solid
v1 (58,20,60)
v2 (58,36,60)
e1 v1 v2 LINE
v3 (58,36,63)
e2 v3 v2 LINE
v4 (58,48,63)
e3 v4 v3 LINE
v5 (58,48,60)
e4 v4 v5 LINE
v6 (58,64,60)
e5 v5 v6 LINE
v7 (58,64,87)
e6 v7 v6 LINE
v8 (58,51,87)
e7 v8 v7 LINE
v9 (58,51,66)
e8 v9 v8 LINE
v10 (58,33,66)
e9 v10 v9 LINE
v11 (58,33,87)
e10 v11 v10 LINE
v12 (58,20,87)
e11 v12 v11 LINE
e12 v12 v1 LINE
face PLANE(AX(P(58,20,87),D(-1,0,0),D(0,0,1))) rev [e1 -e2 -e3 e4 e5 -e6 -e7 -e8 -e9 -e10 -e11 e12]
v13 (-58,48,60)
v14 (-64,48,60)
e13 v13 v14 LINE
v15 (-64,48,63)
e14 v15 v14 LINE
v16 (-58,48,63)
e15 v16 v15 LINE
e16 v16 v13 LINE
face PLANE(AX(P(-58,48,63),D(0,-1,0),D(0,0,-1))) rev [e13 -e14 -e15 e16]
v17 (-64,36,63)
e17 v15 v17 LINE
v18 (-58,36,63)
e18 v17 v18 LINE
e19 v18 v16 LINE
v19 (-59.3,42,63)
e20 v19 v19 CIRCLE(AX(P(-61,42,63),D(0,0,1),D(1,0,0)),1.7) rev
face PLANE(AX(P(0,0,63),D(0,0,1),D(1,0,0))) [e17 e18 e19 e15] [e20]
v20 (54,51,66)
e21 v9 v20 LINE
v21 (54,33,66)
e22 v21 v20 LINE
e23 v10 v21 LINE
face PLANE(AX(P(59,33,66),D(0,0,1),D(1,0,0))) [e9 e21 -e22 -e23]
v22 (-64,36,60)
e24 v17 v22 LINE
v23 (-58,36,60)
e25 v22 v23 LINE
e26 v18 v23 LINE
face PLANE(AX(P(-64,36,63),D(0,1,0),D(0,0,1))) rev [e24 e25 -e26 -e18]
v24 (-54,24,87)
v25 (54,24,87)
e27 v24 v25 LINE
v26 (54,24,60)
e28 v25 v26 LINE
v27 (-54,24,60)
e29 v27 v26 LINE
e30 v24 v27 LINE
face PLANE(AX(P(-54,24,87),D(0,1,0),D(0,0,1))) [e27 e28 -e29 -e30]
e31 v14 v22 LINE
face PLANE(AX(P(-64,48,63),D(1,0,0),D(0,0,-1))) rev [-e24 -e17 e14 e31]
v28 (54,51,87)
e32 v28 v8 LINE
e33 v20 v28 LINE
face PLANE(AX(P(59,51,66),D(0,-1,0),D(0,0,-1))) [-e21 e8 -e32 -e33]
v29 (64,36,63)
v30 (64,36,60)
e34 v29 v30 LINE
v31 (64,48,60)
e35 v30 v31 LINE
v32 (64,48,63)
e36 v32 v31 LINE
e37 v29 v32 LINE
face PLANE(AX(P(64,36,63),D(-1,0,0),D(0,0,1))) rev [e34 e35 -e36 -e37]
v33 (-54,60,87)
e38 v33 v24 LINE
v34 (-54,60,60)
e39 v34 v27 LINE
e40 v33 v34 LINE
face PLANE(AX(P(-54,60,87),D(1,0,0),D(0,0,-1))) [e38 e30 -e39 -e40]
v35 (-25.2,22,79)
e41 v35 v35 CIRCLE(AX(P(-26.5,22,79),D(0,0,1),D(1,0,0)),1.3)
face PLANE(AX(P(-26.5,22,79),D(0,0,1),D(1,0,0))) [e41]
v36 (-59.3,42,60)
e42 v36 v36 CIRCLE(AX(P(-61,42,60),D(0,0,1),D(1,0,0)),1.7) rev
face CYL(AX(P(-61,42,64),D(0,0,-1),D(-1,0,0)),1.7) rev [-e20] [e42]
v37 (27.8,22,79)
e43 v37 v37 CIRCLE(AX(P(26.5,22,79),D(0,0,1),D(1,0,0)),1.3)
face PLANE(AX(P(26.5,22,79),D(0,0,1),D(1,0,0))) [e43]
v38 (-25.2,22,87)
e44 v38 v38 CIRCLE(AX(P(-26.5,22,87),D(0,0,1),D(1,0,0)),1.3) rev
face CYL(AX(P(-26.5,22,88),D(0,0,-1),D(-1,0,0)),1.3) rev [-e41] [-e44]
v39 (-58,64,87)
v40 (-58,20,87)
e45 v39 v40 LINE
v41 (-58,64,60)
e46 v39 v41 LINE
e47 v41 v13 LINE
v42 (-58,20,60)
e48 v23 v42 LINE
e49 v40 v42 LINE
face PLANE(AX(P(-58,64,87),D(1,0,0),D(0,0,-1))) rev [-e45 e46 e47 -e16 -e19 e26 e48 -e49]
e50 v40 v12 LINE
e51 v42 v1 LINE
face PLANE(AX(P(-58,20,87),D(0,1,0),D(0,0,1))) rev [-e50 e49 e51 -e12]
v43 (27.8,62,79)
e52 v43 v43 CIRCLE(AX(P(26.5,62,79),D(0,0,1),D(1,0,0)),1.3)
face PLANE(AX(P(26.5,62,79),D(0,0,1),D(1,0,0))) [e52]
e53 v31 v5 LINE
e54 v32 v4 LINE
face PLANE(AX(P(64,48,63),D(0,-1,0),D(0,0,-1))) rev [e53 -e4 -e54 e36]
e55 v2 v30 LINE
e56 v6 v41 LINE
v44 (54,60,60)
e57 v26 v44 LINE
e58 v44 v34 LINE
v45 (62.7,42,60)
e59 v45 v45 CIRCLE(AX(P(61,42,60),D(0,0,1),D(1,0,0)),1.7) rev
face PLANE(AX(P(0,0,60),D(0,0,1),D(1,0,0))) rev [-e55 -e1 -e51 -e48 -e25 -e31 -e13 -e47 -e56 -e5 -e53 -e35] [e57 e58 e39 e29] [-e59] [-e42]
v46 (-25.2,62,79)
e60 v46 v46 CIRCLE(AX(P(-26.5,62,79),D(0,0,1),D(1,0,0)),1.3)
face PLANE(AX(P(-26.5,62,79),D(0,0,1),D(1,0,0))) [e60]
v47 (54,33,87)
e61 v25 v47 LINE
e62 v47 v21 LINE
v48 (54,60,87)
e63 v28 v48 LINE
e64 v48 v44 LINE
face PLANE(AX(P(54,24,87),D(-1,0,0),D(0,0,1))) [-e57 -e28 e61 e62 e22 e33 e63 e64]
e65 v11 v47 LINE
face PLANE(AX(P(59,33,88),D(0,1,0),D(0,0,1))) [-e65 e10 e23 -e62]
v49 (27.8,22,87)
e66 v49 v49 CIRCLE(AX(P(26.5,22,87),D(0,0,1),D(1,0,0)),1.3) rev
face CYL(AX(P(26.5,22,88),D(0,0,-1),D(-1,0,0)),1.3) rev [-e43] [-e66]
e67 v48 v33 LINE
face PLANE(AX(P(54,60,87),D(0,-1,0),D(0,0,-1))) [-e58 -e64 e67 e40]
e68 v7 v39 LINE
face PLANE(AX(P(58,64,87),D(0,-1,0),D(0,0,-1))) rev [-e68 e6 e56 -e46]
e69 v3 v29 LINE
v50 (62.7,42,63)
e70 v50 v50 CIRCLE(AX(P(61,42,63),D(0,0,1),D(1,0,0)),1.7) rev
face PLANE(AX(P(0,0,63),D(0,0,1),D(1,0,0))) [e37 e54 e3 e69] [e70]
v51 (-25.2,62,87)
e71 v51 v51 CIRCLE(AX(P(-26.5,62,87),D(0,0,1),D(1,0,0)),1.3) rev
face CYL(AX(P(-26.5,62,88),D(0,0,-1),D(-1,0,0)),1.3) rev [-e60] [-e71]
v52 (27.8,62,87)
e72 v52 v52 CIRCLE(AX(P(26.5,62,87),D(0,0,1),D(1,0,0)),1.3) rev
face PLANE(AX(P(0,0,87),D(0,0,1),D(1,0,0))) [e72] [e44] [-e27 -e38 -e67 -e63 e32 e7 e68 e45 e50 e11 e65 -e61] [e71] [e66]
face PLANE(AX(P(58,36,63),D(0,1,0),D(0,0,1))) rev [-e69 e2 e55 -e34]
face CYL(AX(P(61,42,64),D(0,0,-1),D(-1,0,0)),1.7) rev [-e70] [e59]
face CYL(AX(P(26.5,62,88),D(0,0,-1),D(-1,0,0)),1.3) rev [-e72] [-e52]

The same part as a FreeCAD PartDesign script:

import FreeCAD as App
import Part
import Sketcher
Q = App.Units.Quantity

doc = App.newDocument("Part")
body = doc.addObject("PartDesign::Body", "Body")

sketch1 = body.newObject("Sketcher::SketchObject", "Sketch")
sketch1.AttachmentSupport = (doc.getObject("XY_Plane"), [""])
sketch1.MapMode = "FlatFace"
sketch1.AttachmentOffset = App.Placement(App.Vector(0, 0, 60), App.Rotation())
sketch1.addGeometry([
    Part.LineSegment(App.Vector(-58, 64, 0), App.Vector(-58, 20, 0)),
    Part.LineSegment(App.Vector(-58, 20, 0), App.Vector(58, 20, 0)),
    Part.LineSegment(App.Vector(58, 20, 0), App.Vector(58, 64, 0)),
    Part.LineSegment(App.Vector(58, 64, 0), App.Vector(-58, 64, 0)),
    Part.LineSegment(App.Vector(54, 24, 0), App.Vector(-54, 24, 0)),
    Part.LineSegment(App.Vector(-54, 24, 0), App.Vector(-54, 60, 0)),
    Part.LineSegment(App.Vector(-54, 60, 0), App.Vector(54, 60, 0)),
    Part.LineSegment(App.Vector(54, 60, 0), App.Vector(54, 24, 0)),
], False)
sketch1.addConstraint([
    Sketcher.Constraint("Coincident", 0, 2, 1, 1),
    Sketcher.Constraint("Coincident", 1, 2, 2, 1),
    Sketcher.Constraint("Coincident", 2, 2, 3, 1),
    Sketcher.Constraint("Coincident", 3, 2, 0, 1),
    Sketcher.Constraint("Coincident", 4, 2, 5, 1),
    Sketcher.Constraint("Coincident", 5, 2, 6, 1),
    Sketcher.Constraint("Coincident", 6, 2, 7, 1),
    Sketcher.Constraint("Coincident", 7, 2, 4, 1),
    Sketcher.Constraint("Vertical", 0),
    Sketcher.Constraint("Horizontal", 1),
    Sketcher.Constraint("Vertical", 2),
    Sketcher.Constraint("Horizontal", 3),
    Sketcher.Constraint("Horizontal", 4),
    Sketcher.Constraint("Vertical", 5),
    Sketcher.Constraint("Horizontal", 6),
    Sketcher.Constraint("Vertical", 7),
    Sketcher.Constraint("DistanceX", 1, 1, 1, 2, Q("116 mm")),
    Sketcher.Constraint("DistanceX", 4, 2, 4, 1, Q("108 mm")),
    Sketcher.Constraint("DistanceY", 0, 2, 0, 1, Q("44 mm")),
    Sketcher.Constraint("DistanceY", 5, 1, 5, 2, Q("36 mm")),
    Sketcher.Constraint("DistanceX", 0, 2, -1, 1, Q("58 mm")),
    Sketcher.Constraint("DistanceY", -1, 1, 0, 2, Q("20 mm")),
    Sketcher.Constraint("DistanceX", 4, 2, -1, 1, Q("54 mm")),
    Sketcher.Constraint("DistanceY", -1, 1, 4, 2, Q("24 mm")),
])
pad1 = body.newObject("PartDesign::Pad", "Pad")
pad1.Profile = sketch1
pad1.Length = 27

sketch2 = body.newObject("Sketcher::SketchObject", "Sketch001")
sketch2.AttachmentSupport = (doc.getObject("XY_Plane"), [""])
sketch2.MapMode = "FlatFace"
sketch2.AttachmentOffset = App.Placement(App.Vector(0, 0, 60), App.Rotation())
sketch2.addGeometry([
    Part.LineSegment(App.Vector(58, 48, 0), App.Vector(58, 36, 0)),
    Part.LineSegment(App.Vector(58, 36, 0), App.Vector(64, 36, 0)),
    Part.LineSegment(App.Vector(64, 36, 0), App.Vector(64, 48, 0)),
    Part.LineSegment(App.Vector(64, 48, 0), App.Vector(58, 48, 0)),
    Part.LineSegment(App.Vector(-64, 48, 0), App.Vector(-64, 36, 0)),
    Part.LineSegment(App.Vector(-64, 36, 0), App.Vector(-58, 36, 0)),
    Part.LineSegment(App.Vector(-58, 36, 0), App.Vector(-58, 48, 0)),
    Part.LineSegment(App.Vector(-58, 48, 0), App.Vector(-64, 48, 0)),
], False)
sketch2.addConstraint([
    Sketcher.Constraint("Coincident", 0, 2, 1, 1),
    Sketcher.Constraint("Coincident", 1, 2, 2, 1),
    Sketcher.Constraint("Coincident", 2, 2, 3, 1),
    Sketcher.Constraint("Coincident", 3, 2, 0, 1),
    Sketcher.Constraint("Coincident", 4, 2, 5, 1),
    Sketcher.Constraint("Coincident", 5, 2, 6, 1),
    Sketcher.Constraint("Coincident", 6, 2, 7, 1),
    Sketcher.Constraint("Coincident", 7, 2, 4, 1),
    Sketcher.Constraint("Vertical", 0),
    Sketcher.Constraint("Horizontal", 1),
    Sketcher.Constraint("Vertical", 2),
    Sketcher.Constraint("Horizontal", 3),
    Sketcher.Constraint("Vertical", 4),
    Sketcher.Constraint("Horizontal", 5),
    Sketcher.Constraint("Vertical", 6),
    Sketcher.Constraint("Horizontal", 7),
    Sketcher.Constraint("Symmetric", 1, 2, 4, 2, -2),
    Sketcher.Constraint("Symmetric", 3, 2, 6, 2, -2),
    Sketcher.Constraint("DistanceX", 1, 1, 1, 2, Q("6 mm")),
    Sketcher.Constraint("DistanceY", 0, 2, 0, 1, Q("12 mm")),
    Sketcher.Constraint("DistanceX", -1, 1, 0, 2, Q("58 mm")),
    Sketcher.Constraint("DistanceY", -1, 1, 0, 2, Q("36 mm")),
])
pad2 = body.newObject("PartDesign::Pad", "Pad001")
pad2.Profile = sketch2
pad2.Length = 3

sketch3 = body.newObject("Sketcher::SketchObject", "Sketch002")
sketch3.AttachmentSupport = (doc.getObject("XY_Plane"), [""])
sketch3.MapMode = "FlatFace"
sketch3.AttachmentOffset = App.Placement(App.Vector(0, 0, 59), App.Rotation())
sketch3.addGeometry([
    Part.Circle(App.Vector(61, 42, 0), App.Vector(0, 0, 1), 1.7),
    Part.Circle(App.Vector(-61, 42, 0), App.Vector(0, 0, 1), 1.7),
], False)
sketch3.addConstraint([
    Sketcher.Constraint("Equal", 0, 1),
    Sketcher.Constraint("Symmetric", 0, 3, 1, 3, -2),
    Sketcher.Constraint("Diameter", 0, Q("3.4 mm")),
    Sketcher.Constraint("DistanceX", -1, 1, 0, 3, Q("61 mm")),
    Sketcher.Constraint("DistanceY", -1, 1, 0, 3, Q("42 mm")),
])
pocket1 = body.newObject("PartDesign::Pocket", "Pocket")
pocket1.Profile = sketch3
pocket1.Length = 5
pocket1.Reversed = True

sketch4 = body.newObject("Sketcher::SketchObject", "Sketch003")
sketch4.AttachmentSupport = (doc.getObject("XY_Plane"), [""])
sketch4.MapMode = "FlatFace"
sketch4.AttachmentOffset = App.Placement(App.Vector(0, 0, 79), App.Rotation())
sketch4.addGeometry([
    Part.LineSegment(App.Vector(21.5, 64, 0), App.Vector(21.5, 60, 0)),
    Part.LineSegment(App.Vector(21.5, 60, 0), App.Vector(31.5, 60, 0)),
    Part.LineSegment(App.Vector(31.5, 60, 0), App.Vector(31.5, 64, 0)),
    Part.LineSegment(App.Vector(31.5, 64, 0), App.Vector(21.5, 64, 0)),
    Part.LineSegment(App.Vector(-31.5, 64, 0), App.Vector(-31.5, 60, 0)),
    Part.LineSegment(App.Vector(-31.5, 60, 0), App.Vector(-21.5, 60, 0)),
    Part.LineSegment(App.Vector(-21.5, 60, 0), App.Vector(-21.5, 64, 0)),
    Part.LineSegment(App.Vector(-21.5, 64, 0), App.Vector(-31.5, 64, 0)),
    Part.LineSegment(App.Vector(21.5, 24, 0), App.Vector(21.5, 20, 0)),
    Part.LineSegment(App.Vector(21.5, 20, 0), App.Vector(31.5, 20, 0)),
    Part.LineSegment(App.Vector(31.5, 20, 0), App.Vector(31.5, 24, 0)),
    Part.LineSegment(App.Vector(31.5, 24, 0), App.Vector(21.5, 24, 0)),
    Part.LineSegment(App.Vector(-31.5, 24, 0), App.Vector(-31.5, 20, 0)),
    Part.LineSegment(App.Vector(-31.5, 20, 0), App.Vector(-21.5, 20, 0)),
    Part.LineSegment(App.Vector(-21.5, 20, 0), App.Vector(-21.5, 24, 0)),
    Part.LineSegment(App.Vector(-21.5, 24, 0), App.Vector(-31.5, 24, 0)),
], False)
sketch4.addConstraint([
    Sketcher.Constraint("Coincident", 0, 2, 1, 1),
    Sketcher.Constraint("Coincident", 1, 2, 2, 1),
    Sketcher.Constraint("Coincident", 2, 2, 3, 1),
    Sketcher.Constraint("Coincident", 3, 2, 0, 1),
    Sketcher.Constraint("Coincident", 4, 2, 5, 1),
    Sketcher.Constraint("Coincident", 5, 2, 6, 1),
    Sketcher.Constraint("Coincident", 6, 2, 7, 1),
    Sketcher.Constraint("Coincident", 7, 2, 4, 1),
    Sketcher.Constraint("Coincident", 8, 2, 9, 1),
    Sketcher.Constraint("Coincident", 9, 2, 10, 1),
    Sketcher.Constraint("Coincident", 10, 2, 11, 1),
    Sketcher.Constraint("Coincident", 11, 2, 8, 1),
    Sketcher.Constraint("Coincident", 12, 2, 13, 1),
    Sketcher.Constraint("Coincident", 13, 2, 14, 1),
    Sketcher.Constraint("Coincident", 14, 2, 15, 1),
    Sketcher.Constraint("Coincident", 15, 2, 12, 1),
    Sketcher.Constraint("Vertical", 0),
    Sketcher.Constraint("Horizontal", 1),
    Sketcher.Constraint("Vertical", 2),
    Sketcher.Constraint("Horizontal", 3),
    Sketcher.Constraint("Vertical", 4),
    Sketcher.Constraint("Horizontal", 5),
    Sketcher.Constraint("Vertical", 6),
    Sketcher.Constraint("Horizontal", 7),
    Sketcher.Constraint("Vertical", 8),
    Sketcher.Constraint("Horizontal", 9),
    Sketcher.Constraint("Vertical", 10),
    Sketcher.Constraint("Horizontal", 11),
    Sketcher.Constraint("Vertical", 12),
    Sketcher.Constraint("Horizontal", 13),
    Sketcher.Constraint("Vertical", 14),
    Sketcher.Constraint("Horizontal", 15),
    Sketcher.Constraint("Symmetric", 1, 2, 4, 2, -2),
    Sketcher.Constraint("Symmetric", 3, 2, 6, 2, -2),
    Sketcher.Constraint("Symmetric", 9, 2, 12, 2, -2),
    Sketcher.Constraint("Symmetric", 11, 2, 14, 2, -2),
    Sketcher.Constraint("Vertical", 3, 2, 8, 2),
    Sketcher.Constraint("Vertical", 2, 2, 9, 2),
    Sketcher.Constraint("Equal", 6, 8),
    Sketcher.Constraint("DistanceX", 1, 1, 1, 2, Q("10 mm")),
    Sketcher.Constraint("DistanceY", 0, 2, 0, 1, Q("4 mm")),
    Sketcher.Constraint("DistanceY", -1, 1, 0, 2, Q("60 mm")),
    Sketcher.Constraint("DistanceY", -1, 1, 8, 2, Q("20 mm")),
    Sketcher.Constraint("DistanceX", 4, 2, 0, 2, Q("53 mm")),
])
pad3 = body.newObject("PartDesign::Pad", "Pad002")
pad3.Profile = sketch4
pad3.Length = 8

sketch5 = body.newObject("Sketcher::SketchObject", "Sketch004")
sketch5.AttachmentSupport = (doc.getObject("XY_Plane"), [""])
sketch5.MapMode = "FlatFace"
sketch5.AttachmentOffset = App.Placement(App.Vector(0, 0, 79), App.Rotation())
sketch5.addGeometry([
    Part.Circle(App.Vector(26.5, 62, 0), App.Vector(0, 0, 1), 1.3),
    Part.Circle(App.Vector(26.5, 22, 0), App.Vector(0, 0, 1), 1.3),
    Part.Circle(App.Vector(-26.5, 62, 0), App.Vector(0, 0, 1), 1.3),
    Part.Circle(App.Vector(-26.5, 22, 0), App.Vector(0, 0, 1), 1.3),
], False)
sketch5.addConstraint([
    Sketcher.Constraint("Equal", 0, 1),
    Sketcher.Constraint("Equal", 1, 2),
    Sketcher.Constraint("Equal", 2, 3),
    Sketcher.Constraint("Symmetric", 0, 3, 2, 3, -2),
    Sketcher.Constraint("Symmetric", 1, 3, 3, 3, -2),
    Sketcher.Constraint("Vertical", 0, 3, 1, 3),
    Sketcher.Constraint("Diameter", 0, Q("2.6 mm")),
    Sketcher.Constraint("DistanceY", -1, 1, 0, 3, Q("62 mm")),
    Sketcher.Constraint("DistanceY", -1, 1, 1, 3, Q("22 mm")),
    Sketcher.Constraint("DistanceX", 2, 3, 0, 3, Q("53 mm")),
])
pocket2 = body.newObject("PartDesign::Pocket", "Pocket001")
pocket2.Profile = sketch5
pocket2.Length = 9
pocket2.Reversed = True

sketch6 = body.newObject("Sketcher::SketchObject", "Sketch005")
sketch6.AttachmentSupport = (doc.getObject("YZ_Plane"), [""])
sketch6.MapMode = "FlatFace"
sketch6.AttachmentOffset = App.Placement(App.Vector(0, 0, 53), App.Rotation())
sketch6.addGeometry([
    Part.LineSegment(App.Vector(51, 88, 0), App.Vector(33, 88, 0)),
    Part.LineSegment(App.Vector(33, 88, 0), App.Vector(33, 66, 0)),
    Part.LineSegment(App.Vector(33, 66, 0), App.Vector(51, 66, 0)),
    Part.LineSegment(App.Vector(51, 66, 0), App.Vector(51, 88, 0)),
], False)
sketch6.addConstraint([
    Sketcher.Constraint("Coincident", 0, 2, 1, 1),
    Sketcher.Constraint("Coincident", 1, 2, 2, 1),
    Sketcher.Constraint("Coincident", 2, 2, 3, 1),
    Sketcher.Constraint("Coincident", 3, 2, 0, 1),
    Sketcher.Constraint("Horizontal", 0),
    Sketcher.Constraint("Vertical", 1),
    Sketcher.Constraint("Horizontal", 2),
    Sketcher.Constraint("Vertical", 3),
    Sketcher.Constraint("DistanceX", 0, 2, 0, 1, Q("18 mm")),
    Sketcher.Constraint("DistanceY", 1, 2, 1, 1, Q("22 mm")),
    Sketcher.Constraint("DistanceX", -1, 1, 0, 2, Q("33 mm")),
    Sketcher.Constraint("DistanceY", -1, 1, 0, 2, Q("88 mm")),
])
pocket3 = body.newObject("PartDesign::Pocket", "Pocket002")
pocket3.Profile = sketch6
pocket3.Length = 6
pocket3.Reversed = True

doc.recompute()
